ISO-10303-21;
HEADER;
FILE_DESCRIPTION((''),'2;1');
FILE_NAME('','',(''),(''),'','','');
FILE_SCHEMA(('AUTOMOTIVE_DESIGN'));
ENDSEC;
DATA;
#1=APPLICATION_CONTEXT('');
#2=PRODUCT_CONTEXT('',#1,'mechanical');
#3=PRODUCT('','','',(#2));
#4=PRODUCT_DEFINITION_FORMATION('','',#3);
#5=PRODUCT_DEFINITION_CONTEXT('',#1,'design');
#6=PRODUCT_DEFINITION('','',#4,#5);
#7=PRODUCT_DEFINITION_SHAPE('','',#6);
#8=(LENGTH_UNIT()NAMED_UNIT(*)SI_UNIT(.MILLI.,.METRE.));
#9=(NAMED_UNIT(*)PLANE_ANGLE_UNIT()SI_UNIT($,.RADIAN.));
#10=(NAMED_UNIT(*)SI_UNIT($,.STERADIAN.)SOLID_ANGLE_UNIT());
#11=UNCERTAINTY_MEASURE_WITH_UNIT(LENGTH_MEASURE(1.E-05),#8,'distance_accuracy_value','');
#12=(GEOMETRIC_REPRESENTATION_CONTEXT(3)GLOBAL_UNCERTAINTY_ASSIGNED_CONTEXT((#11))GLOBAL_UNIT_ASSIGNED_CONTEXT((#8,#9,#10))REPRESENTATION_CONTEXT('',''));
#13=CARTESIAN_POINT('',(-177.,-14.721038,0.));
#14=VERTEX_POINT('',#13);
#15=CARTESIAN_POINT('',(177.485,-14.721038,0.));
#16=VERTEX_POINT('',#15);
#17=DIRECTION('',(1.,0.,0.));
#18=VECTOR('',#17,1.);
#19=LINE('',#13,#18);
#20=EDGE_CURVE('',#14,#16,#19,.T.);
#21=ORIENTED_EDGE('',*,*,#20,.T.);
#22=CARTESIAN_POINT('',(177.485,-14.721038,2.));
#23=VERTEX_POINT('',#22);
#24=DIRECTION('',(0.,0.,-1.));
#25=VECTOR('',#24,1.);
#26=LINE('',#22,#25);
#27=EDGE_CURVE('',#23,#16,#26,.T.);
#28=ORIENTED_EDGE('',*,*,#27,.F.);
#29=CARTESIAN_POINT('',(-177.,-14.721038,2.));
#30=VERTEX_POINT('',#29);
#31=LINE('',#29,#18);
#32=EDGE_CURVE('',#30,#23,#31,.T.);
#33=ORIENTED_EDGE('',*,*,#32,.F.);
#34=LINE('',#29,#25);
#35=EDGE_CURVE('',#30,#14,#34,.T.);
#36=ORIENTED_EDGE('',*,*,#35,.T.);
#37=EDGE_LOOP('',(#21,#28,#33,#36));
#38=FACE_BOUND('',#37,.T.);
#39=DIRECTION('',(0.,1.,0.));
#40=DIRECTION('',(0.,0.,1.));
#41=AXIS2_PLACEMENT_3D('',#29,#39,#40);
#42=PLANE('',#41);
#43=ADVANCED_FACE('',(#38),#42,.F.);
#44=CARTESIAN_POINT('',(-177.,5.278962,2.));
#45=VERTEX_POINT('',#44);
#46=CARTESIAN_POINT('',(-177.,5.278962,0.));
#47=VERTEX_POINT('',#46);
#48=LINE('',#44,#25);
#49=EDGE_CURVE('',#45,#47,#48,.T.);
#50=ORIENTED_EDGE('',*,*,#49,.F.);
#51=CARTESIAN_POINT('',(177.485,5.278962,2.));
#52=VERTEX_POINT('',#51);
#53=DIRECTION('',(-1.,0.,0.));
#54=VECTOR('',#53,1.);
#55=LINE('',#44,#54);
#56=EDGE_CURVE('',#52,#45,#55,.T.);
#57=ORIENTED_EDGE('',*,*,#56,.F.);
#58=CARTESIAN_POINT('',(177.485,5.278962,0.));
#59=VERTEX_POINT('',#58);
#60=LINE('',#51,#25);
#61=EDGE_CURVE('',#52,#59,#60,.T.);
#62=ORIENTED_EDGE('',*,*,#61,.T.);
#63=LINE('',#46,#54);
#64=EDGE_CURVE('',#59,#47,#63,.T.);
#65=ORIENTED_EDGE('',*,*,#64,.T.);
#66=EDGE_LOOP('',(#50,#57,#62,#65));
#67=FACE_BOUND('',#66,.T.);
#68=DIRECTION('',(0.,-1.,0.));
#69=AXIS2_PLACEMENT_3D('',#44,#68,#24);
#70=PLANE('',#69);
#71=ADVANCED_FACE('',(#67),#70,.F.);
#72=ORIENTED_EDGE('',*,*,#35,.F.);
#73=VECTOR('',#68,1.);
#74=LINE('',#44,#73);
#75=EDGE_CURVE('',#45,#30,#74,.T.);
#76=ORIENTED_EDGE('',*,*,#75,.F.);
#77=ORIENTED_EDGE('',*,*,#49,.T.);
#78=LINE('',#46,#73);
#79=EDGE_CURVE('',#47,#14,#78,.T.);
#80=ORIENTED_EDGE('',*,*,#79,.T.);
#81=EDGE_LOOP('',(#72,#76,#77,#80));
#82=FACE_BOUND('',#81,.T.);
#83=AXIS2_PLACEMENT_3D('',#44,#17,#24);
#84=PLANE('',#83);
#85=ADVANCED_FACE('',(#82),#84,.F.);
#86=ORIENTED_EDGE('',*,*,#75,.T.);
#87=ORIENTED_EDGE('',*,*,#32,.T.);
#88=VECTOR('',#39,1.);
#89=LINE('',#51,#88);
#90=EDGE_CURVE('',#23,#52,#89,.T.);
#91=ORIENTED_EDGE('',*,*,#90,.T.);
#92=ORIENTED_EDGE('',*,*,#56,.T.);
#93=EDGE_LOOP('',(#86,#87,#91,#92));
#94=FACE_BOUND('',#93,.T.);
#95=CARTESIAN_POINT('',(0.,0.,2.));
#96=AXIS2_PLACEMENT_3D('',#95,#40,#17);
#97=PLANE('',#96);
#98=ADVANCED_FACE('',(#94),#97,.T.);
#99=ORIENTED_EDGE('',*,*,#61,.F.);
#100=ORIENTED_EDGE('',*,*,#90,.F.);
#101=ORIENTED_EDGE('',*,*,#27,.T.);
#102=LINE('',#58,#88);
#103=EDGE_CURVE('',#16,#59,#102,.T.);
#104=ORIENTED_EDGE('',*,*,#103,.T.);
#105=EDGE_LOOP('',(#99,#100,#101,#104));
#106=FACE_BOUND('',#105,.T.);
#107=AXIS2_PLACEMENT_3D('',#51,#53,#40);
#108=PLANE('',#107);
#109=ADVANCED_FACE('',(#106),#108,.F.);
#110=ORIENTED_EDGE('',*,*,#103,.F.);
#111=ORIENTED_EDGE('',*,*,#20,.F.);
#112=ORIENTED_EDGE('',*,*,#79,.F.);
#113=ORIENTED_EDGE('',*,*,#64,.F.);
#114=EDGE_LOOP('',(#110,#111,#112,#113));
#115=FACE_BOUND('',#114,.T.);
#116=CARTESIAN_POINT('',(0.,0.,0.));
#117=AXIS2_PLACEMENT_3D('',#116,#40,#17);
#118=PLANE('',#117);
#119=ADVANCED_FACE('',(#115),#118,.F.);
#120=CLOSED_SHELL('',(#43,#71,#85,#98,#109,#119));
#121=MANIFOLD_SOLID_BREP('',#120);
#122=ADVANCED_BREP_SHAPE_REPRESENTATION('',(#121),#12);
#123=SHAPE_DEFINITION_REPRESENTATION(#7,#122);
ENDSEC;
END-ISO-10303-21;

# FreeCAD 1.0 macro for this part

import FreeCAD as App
import Part
import Sketcher

V = App.Vector
Q = App.Units.Quantity


def add_polygon(sketch, points):
    """Adds a closed chain of lines whose ends are joined by coincident constraints."""
    first, n = sketch.GeometryCount, len(points)
    for a, b in zip(points, points[1:] + points[:1]):
        sketch.addGeometry(Part.LineSegment(App.Vector(*a, 0), App.Vector(*b, 0)), False)
    for i in range(n):
        sketch.addConstraint(Sketcher.Constraint("Coincident", first + i, 2, first + (i + 1) % n, 1))

doc = App.newDocument("Part")
body = doc.addObject("PartDesign::Body", "Body")

# Sketch on XY plane
sketch1 = body.newObject("Sketcher::SketchObject", "Sketch")
sketch1.AttachmentSupport = (doc.getObject("XY_Plane"), [""])
sketch1.MapMode = "FlatFace"
add_polygon(sketch1, [(-177, 5.278962), (-177, -14.721038), (177.485, -14.721038), (177.485, 5.278962)])  # lines 0-3
sketch1.addConstraint(Sketcher.Constraint("Vertical", 0))
sketch1.addConstraint(Sketcher.Constraint("Horizontal", 1))
sketch1.addConstraint(Sketcher.Constraint("Vertical", 2))
sketch1.addConstraint(Sketcher.Constraint("Horizontal", 3))
sketch1.addConstraint(Sketcher.Constraint("DistanceY", 0, 2, 0, 1, Q("20 mm")))
sketch1.addConstraint(Sketcher.Constraint("DistanceX", 0, 2, -1, 1, Q("177 mm")))
sketch1.addConstraint(Sketcher.Constraint("DistanceX", 1, 1, 1, 2, Q("354.485 mm")))
sketch1.addConstraint(Sketcher.Constraint("DistanceY", 0, 2, -1, 1, Q("14.721038 mm")))
pad1 = body.newObject("PartDesign::Pad", "Pad")
pad1.Profile = sketch1
pad1.Length = 2

doc.recompute()
